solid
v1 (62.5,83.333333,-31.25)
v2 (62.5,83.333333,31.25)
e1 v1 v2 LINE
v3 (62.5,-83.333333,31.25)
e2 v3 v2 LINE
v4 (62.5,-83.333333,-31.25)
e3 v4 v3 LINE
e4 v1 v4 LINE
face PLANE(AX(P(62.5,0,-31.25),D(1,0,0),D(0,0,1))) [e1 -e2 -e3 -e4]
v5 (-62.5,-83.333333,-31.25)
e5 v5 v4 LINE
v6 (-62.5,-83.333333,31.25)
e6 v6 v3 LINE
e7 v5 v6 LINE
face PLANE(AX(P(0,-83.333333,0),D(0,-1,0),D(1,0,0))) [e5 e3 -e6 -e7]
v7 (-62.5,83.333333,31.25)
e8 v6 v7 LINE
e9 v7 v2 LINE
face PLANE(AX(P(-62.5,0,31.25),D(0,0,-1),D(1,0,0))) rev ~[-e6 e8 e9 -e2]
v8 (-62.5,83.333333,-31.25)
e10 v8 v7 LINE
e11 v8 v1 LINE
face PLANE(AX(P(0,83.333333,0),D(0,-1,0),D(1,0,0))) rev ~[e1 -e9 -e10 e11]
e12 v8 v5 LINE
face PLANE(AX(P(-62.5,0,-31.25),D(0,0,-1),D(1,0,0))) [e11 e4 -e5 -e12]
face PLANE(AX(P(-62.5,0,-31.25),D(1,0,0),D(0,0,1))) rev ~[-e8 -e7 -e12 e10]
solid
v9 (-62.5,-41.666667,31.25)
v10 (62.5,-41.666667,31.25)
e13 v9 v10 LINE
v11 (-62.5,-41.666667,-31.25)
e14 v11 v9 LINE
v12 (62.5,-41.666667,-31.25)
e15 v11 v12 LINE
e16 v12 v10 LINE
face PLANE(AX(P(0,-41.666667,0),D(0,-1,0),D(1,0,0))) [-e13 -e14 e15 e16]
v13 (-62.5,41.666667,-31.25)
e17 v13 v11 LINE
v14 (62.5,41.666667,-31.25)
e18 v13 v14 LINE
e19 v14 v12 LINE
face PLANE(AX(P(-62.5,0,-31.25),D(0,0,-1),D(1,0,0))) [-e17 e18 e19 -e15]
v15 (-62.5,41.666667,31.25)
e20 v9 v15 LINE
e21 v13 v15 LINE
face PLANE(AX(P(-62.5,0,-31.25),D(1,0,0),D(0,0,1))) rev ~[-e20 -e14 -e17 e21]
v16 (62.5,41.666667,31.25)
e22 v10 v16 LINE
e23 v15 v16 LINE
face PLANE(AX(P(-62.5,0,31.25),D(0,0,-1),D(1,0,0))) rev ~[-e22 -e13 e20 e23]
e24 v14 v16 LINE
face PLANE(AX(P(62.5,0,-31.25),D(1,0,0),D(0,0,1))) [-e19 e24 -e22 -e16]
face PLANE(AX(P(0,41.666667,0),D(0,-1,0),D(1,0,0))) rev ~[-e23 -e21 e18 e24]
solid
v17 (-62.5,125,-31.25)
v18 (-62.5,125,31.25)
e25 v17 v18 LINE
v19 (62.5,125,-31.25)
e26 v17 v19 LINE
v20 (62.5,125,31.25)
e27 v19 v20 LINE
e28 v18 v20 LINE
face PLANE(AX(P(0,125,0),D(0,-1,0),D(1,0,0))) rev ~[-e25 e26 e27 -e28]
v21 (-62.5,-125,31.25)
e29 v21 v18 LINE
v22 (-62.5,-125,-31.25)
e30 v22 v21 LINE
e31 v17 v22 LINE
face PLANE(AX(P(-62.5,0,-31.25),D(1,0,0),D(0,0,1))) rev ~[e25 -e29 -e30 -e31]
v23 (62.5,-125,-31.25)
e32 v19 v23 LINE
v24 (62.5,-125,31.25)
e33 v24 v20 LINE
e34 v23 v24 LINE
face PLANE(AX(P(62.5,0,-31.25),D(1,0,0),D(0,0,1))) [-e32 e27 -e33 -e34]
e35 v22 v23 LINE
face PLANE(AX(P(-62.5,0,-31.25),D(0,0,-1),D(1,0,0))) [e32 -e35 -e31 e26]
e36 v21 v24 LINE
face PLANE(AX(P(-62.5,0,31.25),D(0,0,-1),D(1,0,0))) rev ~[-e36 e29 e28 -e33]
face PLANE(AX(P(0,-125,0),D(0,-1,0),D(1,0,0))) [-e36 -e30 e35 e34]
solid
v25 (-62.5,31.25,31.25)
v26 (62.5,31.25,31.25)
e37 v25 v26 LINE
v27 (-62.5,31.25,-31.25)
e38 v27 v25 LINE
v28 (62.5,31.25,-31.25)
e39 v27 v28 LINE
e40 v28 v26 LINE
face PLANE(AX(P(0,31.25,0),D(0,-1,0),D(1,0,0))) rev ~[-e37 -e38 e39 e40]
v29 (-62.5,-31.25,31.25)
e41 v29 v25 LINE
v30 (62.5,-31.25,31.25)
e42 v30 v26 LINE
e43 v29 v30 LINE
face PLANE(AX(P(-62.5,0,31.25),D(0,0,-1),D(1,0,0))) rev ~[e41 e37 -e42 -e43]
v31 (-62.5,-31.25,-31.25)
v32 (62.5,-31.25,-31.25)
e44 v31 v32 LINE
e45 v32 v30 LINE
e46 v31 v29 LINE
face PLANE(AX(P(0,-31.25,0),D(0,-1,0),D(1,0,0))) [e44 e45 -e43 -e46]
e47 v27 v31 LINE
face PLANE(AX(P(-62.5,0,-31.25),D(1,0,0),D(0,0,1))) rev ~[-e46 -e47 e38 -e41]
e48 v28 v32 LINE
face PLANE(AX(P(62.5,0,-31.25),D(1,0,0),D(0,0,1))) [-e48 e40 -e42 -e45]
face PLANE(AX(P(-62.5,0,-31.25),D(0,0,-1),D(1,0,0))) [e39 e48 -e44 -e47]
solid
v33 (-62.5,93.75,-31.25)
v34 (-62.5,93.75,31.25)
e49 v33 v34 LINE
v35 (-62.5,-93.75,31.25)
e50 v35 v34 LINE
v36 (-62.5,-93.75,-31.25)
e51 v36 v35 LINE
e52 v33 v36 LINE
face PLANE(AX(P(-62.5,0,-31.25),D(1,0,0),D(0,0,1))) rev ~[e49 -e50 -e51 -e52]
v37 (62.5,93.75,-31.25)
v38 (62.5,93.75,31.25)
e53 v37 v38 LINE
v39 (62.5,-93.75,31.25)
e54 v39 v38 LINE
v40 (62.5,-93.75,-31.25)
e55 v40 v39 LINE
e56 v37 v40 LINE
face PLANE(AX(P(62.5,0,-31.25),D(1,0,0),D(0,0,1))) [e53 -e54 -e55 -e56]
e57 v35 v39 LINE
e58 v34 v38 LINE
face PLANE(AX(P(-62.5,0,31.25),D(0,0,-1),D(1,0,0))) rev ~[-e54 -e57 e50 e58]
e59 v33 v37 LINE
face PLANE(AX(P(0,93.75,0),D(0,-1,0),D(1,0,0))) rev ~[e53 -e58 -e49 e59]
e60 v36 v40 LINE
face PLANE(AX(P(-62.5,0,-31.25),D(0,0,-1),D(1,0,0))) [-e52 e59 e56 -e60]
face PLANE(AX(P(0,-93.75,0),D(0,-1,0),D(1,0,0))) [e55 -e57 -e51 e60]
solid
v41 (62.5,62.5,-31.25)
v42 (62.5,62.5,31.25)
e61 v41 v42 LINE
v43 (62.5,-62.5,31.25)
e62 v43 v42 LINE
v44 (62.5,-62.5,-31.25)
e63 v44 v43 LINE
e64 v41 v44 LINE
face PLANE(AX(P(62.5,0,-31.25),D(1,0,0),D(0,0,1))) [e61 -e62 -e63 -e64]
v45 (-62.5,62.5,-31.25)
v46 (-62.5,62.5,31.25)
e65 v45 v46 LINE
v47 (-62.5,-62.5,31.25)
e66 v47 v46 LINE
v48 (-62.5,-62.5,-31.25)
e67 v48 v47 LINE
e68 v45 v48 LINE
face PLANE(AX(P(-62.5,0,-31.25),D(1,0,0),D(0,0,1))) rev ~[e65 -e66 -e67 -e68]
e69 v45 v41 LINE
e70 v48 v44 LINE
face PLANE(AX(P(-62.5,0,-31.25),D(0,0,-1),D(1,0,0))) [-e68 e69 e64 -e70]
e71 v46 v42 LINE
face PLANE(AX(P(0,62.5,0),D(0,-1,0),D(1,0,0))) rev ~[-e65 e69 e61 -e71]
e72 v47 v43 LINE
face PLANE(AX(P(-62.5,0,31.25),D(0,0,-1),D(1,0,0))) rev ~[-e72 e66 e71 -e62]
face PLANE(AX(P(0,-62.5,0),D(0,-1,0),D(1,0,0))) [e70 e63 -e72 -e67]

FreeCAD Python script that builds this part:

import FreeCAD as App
import Part
import Sketcher
from FreeCAD import Vector

doc = App.newDocument("Part")
body = doc.addObject("PartDesign::Body", "Body")

# Sketch on XZ plane
sketch1 = body.newObject("Sketcher::SketchObject", "Sketch")
sketch1.AttachmentSupport = (doc.getObject("XZ_Plane"), [""])
sketch1.MapMode = "FlatFace"
sketch1.addGeometry([
    Part.LineSegment(Vector(-62, 31, 0), Vector(-62, -31, 0)),
    Part.LineSegment(Vector(-62, -31, 0), Vector(62, -31, 0)),
    Part.LineSegment(Vector(62, -31, 0), Vector(62, 31, 0)),
    Part.LineSegment(Vector(62, 31, 0), Vector(-62, 31, 0)),
], False)
sketch1.addConstraint([
    Sketcher.Constraint("Coincident", 0, 2, 1, 1),
    Sketcher.Constraint("Coincident", 1, 2, 2, 1),
    Sketcher.Constraint("Coincident", 2, 2, 3, 1),
    Sketcher.Constraint("Coincident", 3, 2, 0, 1),
    Sketcher.Constraint("Vertical", 0),
    Sketcher.Constraint("Horizontal", 1),
    Sketcher.Constraint("Vertical", 2),
    Sketcher.Constraint("Horizontal", 3),
    Sketcher.Constraint("Symmetric", 0, 2, 2, 2, -1, 1),
    Sketcher.Constraint("DistanceX", 1, 1, 1, 2, 125.0),
    Sketcher.Constraint("DistanceY", 0, 2, 0, 1, 62.5),
])
pad1 = body.newObject("PartDesign::Pad", "Pad")
pad1.Profile = sketch1
pad1.Length = 250
pad1.Midplane = True
body2 = doc.addObject("PartDesign::Body", "Body001")

# Sketch on XZ plane
sketch2 = body2.newObject("Sketcher::SketchObject", "Sketch001")
sketch2.AttachmentSupport = (doc.getObject("XZ_Plane001"), [""])
sketch2.MapMode = "FlatFace"
sketch2.addGeometry([
    Part.LineSegment(Vector(-62, 31, 0), Vector(-62, -31, 0)),
    Part.LineSegment(Vector(-62, -31, 0), Vector(62, -31, 0)),
    Part.LineSegment(Vector(62, -31, 0), Vector(62, 31, 0)),
    Part.LineSegment(Vector(62, 31, 0), Vector(-62, 31, 0)),
], False)
sketch2.addConstraint([
    Sketcher.Constraint("Coincident", 0, 2, 1, 1),
    Sketcher.Constraint("Coincident", 1, 2, 2, 1),
    Sketcher.Constraint("Coincident", 2, 2, 3, 1),
    Sketcher.Constraint("Coincident", 3, 2, 0, 1),
    Sketcher.Constraint("Vertical", 0),
    Sketcher.Constraint("Horizontal", 1),
    Sketcher.Constraint("Vertical", 2),
    Sketcher.Constraint("Horizontal", 3),
    Sketcher.Constraint("Symmetric", 0, 2, 2, 2, -1, 1),
    Sketcher.Constraint("DistanceX", 1, 1, 1, 2, 125.0),
    Sketcher.Constraint("DistanceY", 0, 2, 0, 1, 62.5),
])
pad2 = body2.newObject("PartDesign::Pad", "Pad001")
pad2.Profile = sketch2
pad2.Length = 125
pad2.Midplane = True
body3 = doc.addObject("PartDesign::Body", "Body002")

# Sketch on XZ plane
sketch3 = body3.newObject("Sketcher::SketchObject", "Sketch002")
sketch3.AttachmentSupport = (doc.getObject("XZ_Plane002"), [""])
sketch3.MapMode = "FlatFace"
sketch3.addGeometry([
    Part.LineSegment(Vector(-62, 31, 0), Vector(-62, -31, 0)),
    Part.LineSegment(Vector(-62, -31, 0), Vector(62, -31, 0)),
    Part.LineSegment(Vector(62, -31, 0), Vector(62, 31, 0)),
    Part.LineSegment(Vector(62, 31, 0), Vector(-62, 31, 0)),
], False)
sketch3.addConstraint([
    Sketcher.Constraint("Coincident", 0, 2, 1, 1),
    Sketcher.Constraint("Coincident", 1, 2, 2, 1),
    Sketcher.Constraint("Coincident", 2, 2, 3, 1),
    Sketcher.Constraint("Coincident", 3, 2, 0, 1),
    Sketcher.Constraint("Vertical", 0),
    Sketcher.Constraint("Horizontal", 1),
    Sketcher.Constraint("Vertical", 2),
    Sketcher.Constraint("Horizontal", 3),
    Sketcher.Constraint("Symmetric", 0, 2, 2, 2, -1, 1),
    Sketcher.Constraint("DistanceX", 1, 1, 1, 2, 125.0),
    Sketcher.Constraint("DistanceY", 0, 2, 0, 1, 62.5),
])
pad3 = body3.newObject("PartDesign::Pad", "Pad002")
pad3.Profile = sketch3
pad3.Length = 187.5
pad3.Midplane = True
body4 = doc.addObject("PartDesign::Body", "Body003")

# Sketch on XZ plane
sketch4 = body4.newObject("Sketcher::SketchObject", "Sketch003")
sketch4.AttachmentSupport = (doc.getObject("XZ_Plane003"), [""])
sketch4.MapMode = "FlatFace"
sketch4.addGeometry([
    Part.LineSegment(Vector(-62, 31, 0), Vector(-62, -31, 0)),
    Part.LineSegment(Vector(-62, -31, 0), Vector(62, -31, 0)),
    Part.LineSegment(Vector(62, -31, 0), Vector(62, 31, 0)),
    Part.LineSegment(Vector(62, 31, 0), Vector(-62, 31, 0)),
], False)
sketch4.addConstraint([
    Sketcher.Constraint("Coincident", 0, 2, 1, 1),
    Sketcher.Constraint("Coincident", 1, 2, 2, 1),
    Sketcher.Constraint("Coincident", 2, 2, 3, 1),
    Sketcher.Constraint("Coincident", 3, 2, 0, 1),
    Sketcher.Constraint("Vertical", 0),
    Sketcher.Constraint("Horizontal", 1),
    Sketcher.Constraint("Vertical", 2),
    Sketcher.Constraint("Horizontal", 3),
    Sketcher.Constraint("Symmetric", 0, 2, 2, 2, -1, 1),
    Sketcher.Constraint("DistanceX", 1, 1, 1, 2, 125.0),
    Sketcher.Constraint("DistanceY", 0, 2, 0, 1, 62.5),
])
pad4 = body4.newObject("PartDesign::Pad", "Pad003")
pad4.Profile = sketch4
pad4.Length = 62.5
pad4.Midplane = True
body5 = doc.addObject("PartDesign::Body", "Body004")

# Sketch on XZ plane
sketch5 = body5.newObject("Sketcher::SketchObject", "Sketch004")
sketch5.AttachmentSupport = (doc.getObject("XZ_Plane004"), [""])
sketch5.MapMode = "FlatFace"
sketch5.addGeometry([
    Part.LineSegment(Vector(-62, 31, 0), Vector(-62, -31, 0)),
    Part.LineSegment(Vector(-62, -31, 0), Vector(62, -31, 0)),
    Part.LineSegment(Vector(62, -31, 0), Vector(62, 31, 0)),
    Part.LineSegment(Vector(62, 31, 0), Vector(-62, 31, 0)),
], False)
sketch5.addConstraint([
    Sketcher.Constraint("Coincident", 0, 2, 1, 1),
    Sketcher.Constraint("Coincident", 1, 2, 2, 1),
    Sketcher.Constraint("Coincident", 2, 2, 3, 1),
    Sketcher.Constraint("Coincident", 3, 2, 0, 1),
    Sketcher.Constraint("Vertical", 0),
    Sketcher.Constraint("Horizontal", 1),
    Sketcher.Constraint("Vertical", 2),
    Sketcher.Constraint("Horizontal", 3),
    Sketcher.Constraint("Symmetric", 0, 2, 2, 2, -1, 1),
    Sketcher.Constraint("DistanceX", 1, 1, 1, 2, 125.0),
    Sketcher.Constraint("DistanceY", 0, 2, 0, 1, 62.5),
])
pad5 = body5.newObject("PartDesign::Pad", "Pad004")
pad5.Profile = sketch5
pad5.Length = 166.666666
pad5.Midplane = True
body6 = doc.addObject("PartDesign::Body", "Body005")

# Sketch on XZ plane
sketch6 = body6.newObject("Sketcher::SketchObject", "Sketch005")
sketch6.AttachmentSupport = (doc.getObject("XZ_Plane005"), [""])
sketch6.MapMode = "FlatFace"
sketch6.addGeometry([
    Part.LineSegment(Vector(-62, 31, 0), Vector(-62, -31, 0)),
    Part.LineSegment(Vector(-62, -31, 0), Vector(62, -31, 0)),
    Part.LineSegment(Vector(62, -31, 0), Vector(62, 31, 0)),
    Part.LineSegment(Vector(62, 31, 0), Vector(-62, 31, 0)),
], False)
sketch6.addConstraint([
    Sketcher.Constraint("Coincident", 0, 2, 1, 1),
    Sketcher.Constraint("Coincident", 1, 2, 2, 1),
    Sketcher.Constraint("Coincident", 2, 2, 3, 1),
    Sketcher.Constraint("Coincident", 3, 2, 0, 1),
    Sketcher.Constraint("Vertical", 0),
    Sketcher.Constraint("Horizontal", 1),
    Sketcher.Constraint("Vertical", 2),
    Sketcher.Constraint("Horizontal", 3),
    Sketcher.Constraint("Symmetric", 0, 2, 2, 2, -1, 1),
    Sketcher.Constraint("DistanceX", 1, 1, 1, 2, 125.0),
    Sketcher.Constraint("DistanceY", 0, 2, 0, 1, 62.5),
])
pad6 = body6.newObject("PartDesign::Pad", "Pad005")
pad6.Profile = sketch6
pad6.Length = 83.333334
pad6.Midplane = True

doc.recompute()
